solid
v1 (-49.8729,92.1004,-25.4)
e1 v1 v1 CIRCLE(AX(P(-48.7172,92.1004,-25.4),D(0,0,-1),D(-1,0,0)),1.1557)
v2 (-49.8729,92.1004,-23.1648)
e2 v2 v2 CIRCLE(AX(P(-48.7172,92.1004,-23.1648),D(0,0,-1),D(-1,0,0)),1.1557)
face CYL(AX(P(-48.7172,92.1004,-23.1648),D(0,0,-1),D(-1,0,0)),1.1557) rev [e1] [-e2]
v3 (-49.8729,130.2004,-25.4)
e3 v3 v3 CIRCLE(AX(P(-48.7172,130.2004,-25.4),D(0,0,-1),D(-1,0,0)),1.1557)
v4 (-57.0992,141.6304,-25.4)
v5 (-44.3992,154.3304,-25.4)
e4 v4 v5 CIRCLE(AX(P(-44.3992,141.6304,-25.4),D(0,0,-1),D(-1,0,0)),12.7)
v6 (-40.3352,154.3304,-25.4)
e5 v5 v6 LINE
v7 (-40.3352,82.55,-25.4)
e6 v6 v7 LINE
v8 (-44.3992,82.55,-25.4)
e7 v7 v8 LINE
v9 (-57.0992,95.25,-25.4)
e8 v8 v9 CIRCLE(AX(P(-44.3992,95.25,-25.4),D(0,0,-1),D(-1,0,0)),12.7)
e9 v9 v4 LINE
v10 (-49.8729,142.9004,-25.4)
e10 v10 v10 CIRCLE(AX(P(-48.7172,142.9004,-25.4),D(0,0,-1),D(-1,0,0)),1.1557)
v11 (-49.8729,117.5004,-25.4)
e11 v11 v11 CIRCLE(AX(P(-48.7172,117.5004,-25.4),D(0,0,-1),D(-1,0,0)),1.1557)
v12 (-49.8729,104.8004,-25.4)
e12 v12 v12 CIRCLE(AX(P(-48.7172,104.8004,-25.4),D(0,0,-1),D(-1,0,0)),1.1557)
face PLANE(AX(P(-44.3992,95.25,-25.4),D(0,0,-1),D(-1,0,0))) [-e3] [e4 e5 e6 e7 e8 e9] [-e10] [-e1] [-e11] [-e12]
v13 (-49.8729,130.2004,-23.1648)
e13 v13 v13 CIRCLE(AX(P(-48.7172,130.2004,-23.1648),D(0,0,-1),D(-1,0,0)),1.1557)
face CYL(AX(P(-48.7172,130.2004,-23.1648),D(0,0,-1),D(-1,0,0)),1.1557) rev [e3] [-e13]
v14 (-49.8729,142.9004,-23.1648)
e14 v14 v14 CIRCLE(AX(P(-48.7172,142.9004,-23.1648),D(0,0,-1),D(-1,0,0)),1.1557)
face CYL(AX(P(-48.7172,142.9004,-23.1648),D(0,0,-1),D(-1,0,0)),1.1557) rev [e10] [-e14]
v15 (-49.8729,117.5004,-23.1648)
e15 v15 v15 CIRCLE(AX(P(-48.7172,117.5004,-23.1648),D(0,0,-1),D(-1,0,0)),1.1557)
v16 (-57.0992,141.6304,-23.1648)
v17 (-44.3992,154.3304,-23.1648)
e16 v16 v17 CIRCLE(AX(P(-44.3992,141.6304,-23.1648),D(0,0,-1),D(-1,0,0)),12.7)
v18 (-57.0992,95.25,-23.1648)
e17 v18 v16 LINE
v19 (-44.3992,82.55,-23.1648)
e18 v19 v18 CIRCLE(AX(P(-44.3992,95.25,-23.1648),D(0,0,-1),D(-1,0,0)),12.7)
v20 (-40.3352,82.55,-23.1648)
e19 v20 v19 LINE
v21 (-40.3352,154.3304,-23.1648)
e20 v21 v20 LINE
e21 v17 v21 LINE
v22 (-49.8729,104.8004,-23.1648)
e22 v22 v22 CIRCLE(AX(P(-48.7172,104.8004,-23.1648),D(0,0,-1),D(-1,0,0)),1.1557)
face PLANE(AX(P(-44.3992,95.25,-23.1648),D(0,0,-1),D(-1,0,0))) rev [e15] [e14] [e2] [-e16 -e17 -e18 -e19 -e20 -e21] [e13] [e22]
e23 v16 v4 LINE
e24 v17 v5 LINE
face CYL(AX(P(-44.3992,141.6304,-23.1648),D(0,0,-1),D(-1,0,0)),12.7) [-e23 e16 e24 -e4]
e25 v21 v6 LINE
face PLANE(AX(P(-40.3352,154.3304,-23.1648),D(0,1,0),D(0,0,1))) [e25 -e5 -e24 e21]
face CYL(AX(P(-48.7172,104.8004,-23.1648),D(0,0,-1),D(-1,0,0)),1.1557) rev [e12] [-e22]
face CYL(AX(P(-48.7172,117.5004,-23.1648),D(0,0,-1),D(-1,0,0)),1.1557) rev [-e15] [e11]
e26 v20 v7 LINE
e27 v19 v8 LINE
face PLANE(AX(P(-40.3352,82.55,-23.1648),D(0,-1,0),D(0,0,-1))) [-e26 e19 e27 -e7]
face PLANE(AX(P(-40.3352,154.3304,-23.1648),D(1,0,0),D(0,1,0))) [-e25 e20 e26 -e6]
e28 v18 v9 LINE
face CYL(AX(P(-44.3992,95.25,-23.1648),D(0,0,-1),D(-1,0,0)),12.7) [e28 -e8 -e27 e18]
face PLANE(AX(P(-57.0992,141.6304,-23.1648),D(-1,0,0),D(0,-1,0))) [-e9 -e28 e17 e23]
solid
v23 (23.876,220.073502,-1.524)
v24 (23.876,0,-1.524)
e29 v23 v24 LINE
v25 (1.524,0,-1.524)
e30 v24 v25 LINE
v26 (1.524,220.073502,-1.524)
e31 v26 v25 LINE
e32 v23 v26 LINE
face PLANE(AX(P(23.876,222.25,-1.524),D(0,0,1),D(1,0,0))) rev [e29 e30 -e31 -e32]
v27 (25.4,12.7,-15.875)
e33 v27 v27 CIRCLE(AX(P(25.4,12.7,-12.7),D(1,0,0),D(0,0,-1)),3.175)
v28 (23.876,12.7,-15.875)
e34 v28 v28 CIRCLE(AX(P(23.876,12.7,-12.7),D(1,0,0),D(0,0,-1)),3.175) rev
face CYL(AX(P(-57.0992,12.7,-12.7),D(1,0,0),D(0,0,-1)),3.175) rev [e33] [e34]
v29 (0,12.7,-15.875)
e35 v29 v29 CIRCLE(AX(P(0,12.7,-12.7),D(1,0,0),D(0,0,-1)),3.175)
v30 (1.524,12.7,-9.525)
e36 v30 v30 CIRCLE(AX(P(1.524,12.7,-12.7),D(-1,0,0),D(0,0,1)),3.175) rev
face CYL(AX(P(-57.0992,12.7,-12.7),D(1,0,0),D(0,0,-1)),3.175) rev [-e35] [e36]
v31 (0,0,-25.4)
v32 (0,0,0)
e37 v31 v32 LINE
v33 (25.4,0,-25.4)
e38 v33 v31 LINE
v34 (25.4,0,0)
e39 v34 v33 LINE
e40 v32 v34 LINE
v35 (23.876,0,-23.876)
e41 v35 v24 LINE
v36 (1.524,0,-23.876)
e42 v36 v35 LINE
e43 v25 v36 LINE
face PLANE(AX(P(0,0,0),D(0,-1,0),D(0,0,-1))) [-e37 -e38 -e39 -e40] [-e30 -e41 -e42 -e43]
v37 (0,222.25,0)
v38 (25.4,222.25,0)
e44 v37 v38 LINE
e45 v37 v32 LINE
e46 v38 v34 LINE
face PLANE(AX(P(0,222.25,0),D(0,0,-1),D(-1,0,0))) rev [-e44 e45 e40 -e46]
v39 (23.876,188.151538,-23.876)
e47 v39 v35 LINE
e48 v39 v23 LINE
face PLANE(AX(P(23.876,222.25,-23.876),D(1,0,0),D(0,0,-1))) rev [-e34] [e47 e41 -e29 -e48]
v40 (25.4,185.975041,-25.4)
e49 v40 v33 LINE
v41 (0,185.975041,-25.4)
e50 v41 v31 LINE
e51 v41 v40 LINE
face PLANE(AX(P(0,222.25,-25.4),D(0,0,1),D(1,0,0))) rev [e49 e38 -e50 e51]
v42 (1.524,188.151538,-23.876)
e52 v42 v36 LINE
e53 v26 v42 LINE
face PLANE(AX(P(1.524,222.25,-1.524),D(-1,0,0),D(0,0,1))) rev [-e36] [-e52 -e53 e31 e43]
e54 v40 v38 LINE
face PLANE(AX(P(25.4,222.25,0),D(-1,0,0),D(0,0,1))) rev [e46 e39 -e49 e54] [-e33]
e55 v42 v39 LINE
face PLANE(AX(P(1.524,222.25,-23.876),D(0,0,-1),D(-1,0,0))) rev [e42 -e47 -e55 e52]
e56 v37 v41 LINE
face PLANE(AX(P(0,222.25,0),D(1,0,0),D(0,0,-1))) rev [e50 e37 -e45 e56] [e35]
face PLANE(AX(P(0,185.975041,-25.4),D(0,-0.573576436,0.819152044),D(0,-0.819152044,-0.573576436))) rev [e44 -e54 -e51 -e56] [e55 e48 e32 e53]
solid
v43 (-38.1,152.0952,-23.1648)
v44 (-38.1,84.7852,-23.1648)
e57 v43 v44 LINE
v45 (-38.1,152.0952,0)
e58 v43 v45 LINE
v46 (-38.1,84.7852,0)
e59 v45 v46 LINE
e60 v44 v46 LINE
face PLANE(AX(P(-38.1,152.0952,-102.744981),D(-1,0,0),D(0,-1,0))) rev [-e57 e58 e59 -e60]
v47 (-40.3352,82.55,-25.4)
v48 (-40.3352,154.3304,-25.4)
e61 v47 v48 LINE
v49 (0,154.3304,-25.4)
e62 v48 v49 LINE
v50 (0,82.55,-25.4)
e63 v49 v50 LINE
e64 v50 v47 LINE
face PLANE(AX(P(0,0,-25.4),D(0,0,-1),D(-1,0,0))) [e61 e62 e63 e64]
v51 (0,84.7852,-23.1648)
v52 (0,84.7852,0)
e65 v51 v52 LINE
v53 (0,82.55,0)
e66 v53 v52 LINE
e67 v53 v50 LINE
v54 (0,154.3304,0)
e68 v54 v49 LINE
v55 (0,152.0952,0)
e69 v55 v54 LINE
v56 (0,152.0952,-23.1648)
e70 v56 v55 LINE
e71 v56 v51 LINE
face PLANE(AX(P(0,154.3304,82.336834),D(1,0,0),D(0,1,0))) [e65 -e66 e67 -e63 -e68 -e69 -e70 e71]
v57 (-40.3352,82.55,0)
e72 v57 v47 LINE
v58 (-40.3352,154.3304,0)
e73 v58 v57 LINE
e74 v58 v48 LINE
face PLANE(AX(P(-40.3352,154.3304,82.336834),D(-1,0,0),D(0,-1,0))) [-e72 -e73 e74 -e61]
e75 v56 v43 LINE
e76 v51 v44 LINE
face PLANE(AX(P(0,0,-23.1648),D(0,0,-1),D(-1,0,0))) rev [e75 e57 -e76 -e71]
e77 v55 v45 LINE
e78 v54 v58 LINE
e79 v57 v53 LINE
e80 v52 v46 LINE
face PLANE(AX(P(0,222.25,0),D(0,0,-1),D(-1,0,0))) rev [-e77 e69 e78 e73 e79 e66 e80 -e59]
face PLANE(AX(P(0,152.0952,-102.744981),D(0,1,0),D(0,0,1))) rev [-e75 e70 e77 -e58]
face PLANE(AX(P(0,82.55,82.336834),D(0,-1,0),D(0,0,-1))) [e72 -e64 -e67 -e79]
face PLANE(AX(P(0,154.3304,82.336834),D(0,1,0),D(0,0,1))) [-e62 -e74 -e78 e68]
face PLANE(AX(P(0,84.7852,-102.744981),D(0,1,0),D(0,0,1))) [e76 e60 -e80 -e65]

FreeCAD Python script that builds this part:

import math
import FreeCAD as App
import Part
import Sketcher

V = App.Vector
Q = App.Units.Quantity


def add_polygon(sketch, points):
    """Adds a closed chain of lines whose ends are joined by coincident constraints."""
    first, n = sketch.GeometryCount, len(points)
    for a, b in zip(points, points[1:] + points[:1]):
        sketch.addGeometry(Part.LineSegment(App.Vector(*a, 0), App.Vector(*b, 0)), False)
    for i in range(n):
        sketch.addConstraint(Sketcher.Constraint("Coincident", first + i, 2, first + (i + 1) % n, 1))

doc = App.newDocument("Part")
body = doc.addObject("PartDesign::Body", "Body")

sketch1 = body.newObject("Sketcher::SketchObject", "Sketch")
sketch1.AttachmentSupport = (doc.getObject("XZ_Plane"), [""])
sketch1.MapMode = "FlatFace"
add_polygon(sketch1, [(0, -25), (0, 0), (25, 0), (25, -25)])
sketch1.addConstraint([
    Sketcher.Constraint("Vertical", 0),
    Sketcher.Constraint("Horizontal", 1),
    Sketcher.Constraint("Vertical", 2),
    Sketcher.Constraint("Horizontal", 3),
    Sketcher.Constraint("Coincident", 0, 2, -1, 1),
    Sketcher.Constraint("Equal", 3, 0),
    Sketcher.Constraint("DistanceX", 1, 1, 1, 2, Q("1 in")),
])
pad1 = body.newObject("PartDesign::Pad", "Pad")
pad1.Profile = sketch1
pad1.Length = Q("8.75 in")
pad1.Reversed = True

sketch2 = body.newObject("Sketcher::SketchObject", "Sketch001")
sketch2.AttachmentSupport = (doc.getObject("YZ_Plane"), [""])
sketch2.MapMode = "FlatFace"
sketch2.AttachmentOffset = App.Placement(V(0, 0, 1 * 25.4), App.Rotation())
add_polygon(sketch2, [(222, -25), (222, 0), (186, -25)])
sketch2.addConstraint([
    Sketcher.Constraint("Vertical", 0),
    Sketcher.Constraint("Horizontal", 2),
    Sketcher.Constraint("PointOnObject", 0, 2, -1),
    Sketcher.Constraint("DistanceY", 0, 1, 0, 2, Q("1 in")),
    Sketcher.Constraint("Angle", 1, Q("-145 deg")),
    Sketcher.Constraint("DistanceX", -1, 1, 0, 2, Q("8.75 in")),
])
pocket1 = body.newObject("PartDesign::Pocket", "Pocket")
pocket1.Profile = sketch2
pocket1.Type = "ThroughAll"
pocket1.Midplane = True

sketch3 = body.newObject("Sketcher::SketchObject", "Sketch002")
sketch3.AttachmentSupport = (doc.getObject("YZ_Plane"), [""])
sketch3.MapMode = "FlatFace"
sketch3.AttachmentOffset = App.Placement(V(0, 0, 1 * 25.4), App.Rotation())
sketch3.addGeometry(Part.Circle(V(12.7, -12.7, 0), V(0, 0, 1), 3.2), False)
sketch3.addConstraint([
    Sketcher.Constraint("Diameter", 0, Q("0.25 in")),
    Sketcher.Constraint("DistanceX", -1, 1, 0, 3, Q("0.5 in")),
    Sketcher.Constraint("DistanceY", 0, 3, -1, 1, Q("0.5 in")),
])
pocket2 = body.newObject("PartDesign::Pocket", "Pocket001")
pocket2.Profile = sketch3
pocket2.Type = "ThroughAll"

sketch4 = body.newObject("Sketcher::SketchObject", "Sketch003")
sketch4.AttachmentSupport = (doc.getObject("XZ_Plane"), [""])
sketch4.MapMode = "FlatFace"
add_polygon(sketch4, [(2, -2), (2, -24), (24, -24), (24, -2)])
sketch4.addConstraint([
    Sketcher.Constraint("Vertical", 0),
    Sketcher.Constraint("Horizontal", 1),
    Sketcher.Constraint("Vertical", 2),
    Sketcher.Constraint("Horizontal", 3),
    Sketcher.Constraint("Equal", 3, 0),
    Sketcher.Constraint("DistanceX", 1, 1, 1, 2, Q("0.88 in")),
    Sketcher.Constraint("DistanceX", -1, 1, 0, 2, Q("0.06 in")),
    Sketcher.Constraint("DistanceY", 0, 2, -1, 1, Q("0.94 in")),
])
pocket3 = body.newObject("PartDesign::Pocket", "Pocket002")
pocket3.Profile = sketch4
pocket3.Type = "ThroughAll"
body2 = doc.addObject("PartDesign::Body", "Body001")

sketch5 = body2.newObject("Sketcher::SketchObject", "Sketch004")
sketch5.AttachmentSupport = (doc.getObject("XY_Plane001"), [""])
sketch5.MapMode = "FlatFace"
sketch5.AttachmentOffset = App.Placement(V(0, 0, -1 * 25.4), App.Rotation())
add_polygon(sketch5, [(0, 154), (0, 83), (-40, 83), (-40, 154)])
sketch5.addConstraint([
    Sketcher.Constraint("Vertical", 0),
    Sketcher.Constraint("Horizontal", 1),
    Sketcher.Constraint("Vertical", 2),
    Sketcher.Constraint("Horizontal", 3),
    Sketcher.Constraint("PointOnObject", 0, 2, -2),
    Sketcher.Constraint("DistanceX", 1, 2, 1, 1, Q("1.588 in")),
    Sketcher.Constraint("DistanceY", 0, 2, 0, 1, Q("2.826 in")),
    Sketcher.Constraint("DistanceY", -1, 1, 0, 2, Q("3.25 in")),
])
pad2 = body2.newObject("PartDesign::Pad", "Pad001")
pad2.Profile = sketch5
pad2.Length = Q("1 in")

sketch6 = body2.newObject("Sketcher::SketchObject", "Sketch005")
sketch6.AttachmentSupport = (doc.getObject("XY_Plane001"), [""])
sketch6.MapMode = "FlatFace"
add_polygon(sketch6, [(-38, 152), (-38, 85), (0, 85), (0, 152)])
sketch6.addConstraint([
    Sketcher.Constraint("Vertical", 0),
    Sketcher.Constraint("Horizontal", 1),
    Sketcher.Constraint("Vertical", 2),
    Sketcher.Constraint("Horizontal", 3),
    Sketcher.Constraint("PointOnObject", 1, 2, -2),
    Sketcher.Constraint("DistanceX", 1, 1, 1, 2, Q("1.5 in")),
    Sketcher.Constraint("DistanceY", 0, 2, 0, 1, Q("2.65 in")),
    Sketcher.Constraint("DistanceY", -1, 1, 0, 2, Q("3.338 in")),
])
pocket4 = body2.newObject("PartDesign::Pocket", "Pocket003")
pocket4.Profile = sketch6
pocket4.Length = Q("0.912 in")
body3 = doc.addObject("PartDesign::Body", "Body002")

sketch7 = body3.newObject("Sketcher::SketchObject", "Sketch006")
sketch7.AttachmentSupport = (doc.getObject("XY_Plane002"), [""])
sketch7.MapMode = "FlatFace"
sketch7.AttachmentOffset = App.Placement(V(0, 0, -1 * 25.4), App.Rotation())
sketch7.addGeometry([
    Part.LineSegment(V(-44.4, 154.3, 0), V(-40.3, 154.3, 0)),
    Part.LineSegment(V(-40.3, 154.3, 0), V(-40.3, 82.5, 0)),
    Part.LineSegment(V(-40.3, 82.5, 0), V(-44.4, 82.5, 0)),
    Part.ArcOfCircle(Part.Circle(V(-44.4, 95.2, 0), V(0, 0, 1), 12.7), math.radians(180), math.radians(270)),
    Part.LineSegment(V(-57.1, 95.2, 0), V(-57.1, 141.6, 0)),
    Part.ArcOfCircle(Part.Circle(V(-44.4, 141.6, 0), V(0, 0, 1), 12.7), math.radians(90), math.radians(180)),
    Part.Circle(V(-48.7, 92.1, 0), V(0, 0, 1), 1.2),
    Part.Circle(V(-48.7, 104.8, 0), V(0, 0, 1), 1.2),
    Part.Circle(V(-48.7, 117.5, 0), V(0, 0, 1), 1.2),
    Part.Circle(V(-48.7, 130.2, 0), V(0, 0, 1), 1.2),
    Part.Circle(V(-48.7, 142.9, 0), V(0, 0, 1), 1.2),
], False)
sketch7.addConstraint([
    Sketcher.Constraint("Coincident", 0, 2, 1, 1),
    Sketcher.Constraint("Coincident", 1, 2, 2, 1),
    Sketcher.Constraint("Tangent", 2, 2, 3, 2),
    Sketcher.Constraint("Tangent", 3, 1, 4, 1),
    Sketcher.Constraint("Tangent", 4, 2, 5, 2),
    Sketcher.Constraint("Tangent", 5, 1, 0, 1),
    Sketcher.Constraint("Horizontal", 0),
    Sketcher.Constraint("Vertical", 1),
    Sketcher.Constraint("Horizontal", 2),
    Sketcher.Constraint("Vertical", 4),
    Sketcher.Constraint("Equal", 3, 5),
    Sketcher.Constraint("Equal", 6, 7),
    Sketcher.Constraint("Equal", 7, 8),
    Sketcher.Constraint("Equal", 8, 9),
    Sketcher.Constraint("Equal", 9, 10),
    Sketcher.Constraint("Vertical", 6, 3, 7, 3),
    Sketcher.Constraint("Vertical", 7, 3, 8, 3),
    Sketcher.Constraint("Vertical", 8, 3, 9, 3),
    Sketcher.Constraint("Vertical", 9, 3, 10, 3),
    Sketcher.Constraint("Radius", 3, Q("0.5 in")),
    Sketcher.Constraint("Diameter", 6, Q("0.091 in")),
    Sketcher.Constraint("DistanceY", 6, 3, 8, 3, Q("1 in")),
    Sketcher.Constraint("DistanceY", 7, 3, 9, 3, Q("1 in")),
    Sketcher.Constraint("DistanceY", 8, 3, 10, 3, Q("1 in")),
    Sketcher.Constraint("DistanceX", 0, 1, 0, 2, Q("0.16 in")),
    Sketcher.Constraint("DistanceY", 6, 3, 7, 3, Q("0.5 in")),
    Sketcher.Constraint("DistanceY", 1, 2, 1, 1, Q("2.826 in")),
    Sketcher.Constraint("DistanceY", -1, 1, 3, 3, Q("3.75 in")),
    Sketcher.Constraint("DistanceX", 6, 3, 3, 3, Q("0.17 in")),
    Sketcher.Constraint("DistanceY", 6, 3, 5, 3, Q("1.95 in")),
    Sketcher.Constraint("DistanceX", 3, 3, -1, 1, Q("1.748 in")),
])
pad3 = body3.newObject("PartDesign::Pad", "Pad002")
pad3.Profile = sketch7
pad3.Length = Q("0.088 in")

doc.recompute()
